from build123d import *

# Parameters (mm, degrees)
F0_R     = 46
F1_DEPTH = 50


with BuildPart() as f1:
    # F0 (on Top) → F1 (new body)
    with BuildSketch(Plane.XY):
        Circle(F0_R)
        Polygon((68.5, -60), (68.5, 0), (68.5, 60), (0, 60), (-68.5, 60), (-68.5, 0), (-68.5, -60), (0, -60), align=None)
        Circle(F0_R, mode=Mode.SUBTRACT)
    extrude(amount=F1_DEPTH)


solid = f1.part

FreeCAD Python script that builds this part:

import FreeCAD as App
import Part
import Sketcher


def add_polygon(sketch, points):
    """Adds a closed chain of lines whose ends are joined by coincident constraints."""
    first, n = sketch.GeometryCount, len(points)
    for a, b in zip(points, points[1:] + points[:1]):
        sketch.addGeometry(Part.LineSegment(App.Vector(*a, 0), App.Vector(*b, 0)), False)
    for i in range(n):
        sketch.addConstraint(Sketcher.Constraint("Coincident", first + i, 2, first + (i + 1) % n, 1))

doc = App.newDocument("Part")
body = doc.addObject("PartDesign::Body", "Body")

sketch1 = body.newObject("Sketcher::SketchObject", "Sketch")
sketch1.AttachmentSupport = (doc.getObject("XY_Plane"), [""])
sketch1.MapMode = "FlatFace"
add_polygon(sketch1, [(68, -60), (68, 60), (-68, 60), (-68, -60)])
sketch1.addGeometry(Part.Circle(App.Vector(0, 0, 0), App.Vector(0, 0, 1), 46), False)
sketch1.addConstraint([
    Sketcher.Constraint("Vertical", 0),
    Sketcher.Constraint("Horizontal", 1),
    Sketcher.Constraint("Vertical", 2),
    Sketcher.Constraint("Horizontal", 3),
    Sketcher.Constraint("Coincident", 4, 3, -1, 1),
    Sketcher.Constraint("Symmetric", 0, 2, 2, 2, -1, 1),
    Sketcher.Constraint("Diameter", 4, 92.0),
    Sketcher.Constraint("DistanceX", 1, 2, 1, 1, 137.0),
    Sketcher.Constraint("DistanceY", 0, 1, 0, 2, 120.0),
])
pad1 = body.newObject("PartDesign::Pad", "Pad")
pad1.Profile = sketch1
pad1.Length = 50

doc.recompute()
